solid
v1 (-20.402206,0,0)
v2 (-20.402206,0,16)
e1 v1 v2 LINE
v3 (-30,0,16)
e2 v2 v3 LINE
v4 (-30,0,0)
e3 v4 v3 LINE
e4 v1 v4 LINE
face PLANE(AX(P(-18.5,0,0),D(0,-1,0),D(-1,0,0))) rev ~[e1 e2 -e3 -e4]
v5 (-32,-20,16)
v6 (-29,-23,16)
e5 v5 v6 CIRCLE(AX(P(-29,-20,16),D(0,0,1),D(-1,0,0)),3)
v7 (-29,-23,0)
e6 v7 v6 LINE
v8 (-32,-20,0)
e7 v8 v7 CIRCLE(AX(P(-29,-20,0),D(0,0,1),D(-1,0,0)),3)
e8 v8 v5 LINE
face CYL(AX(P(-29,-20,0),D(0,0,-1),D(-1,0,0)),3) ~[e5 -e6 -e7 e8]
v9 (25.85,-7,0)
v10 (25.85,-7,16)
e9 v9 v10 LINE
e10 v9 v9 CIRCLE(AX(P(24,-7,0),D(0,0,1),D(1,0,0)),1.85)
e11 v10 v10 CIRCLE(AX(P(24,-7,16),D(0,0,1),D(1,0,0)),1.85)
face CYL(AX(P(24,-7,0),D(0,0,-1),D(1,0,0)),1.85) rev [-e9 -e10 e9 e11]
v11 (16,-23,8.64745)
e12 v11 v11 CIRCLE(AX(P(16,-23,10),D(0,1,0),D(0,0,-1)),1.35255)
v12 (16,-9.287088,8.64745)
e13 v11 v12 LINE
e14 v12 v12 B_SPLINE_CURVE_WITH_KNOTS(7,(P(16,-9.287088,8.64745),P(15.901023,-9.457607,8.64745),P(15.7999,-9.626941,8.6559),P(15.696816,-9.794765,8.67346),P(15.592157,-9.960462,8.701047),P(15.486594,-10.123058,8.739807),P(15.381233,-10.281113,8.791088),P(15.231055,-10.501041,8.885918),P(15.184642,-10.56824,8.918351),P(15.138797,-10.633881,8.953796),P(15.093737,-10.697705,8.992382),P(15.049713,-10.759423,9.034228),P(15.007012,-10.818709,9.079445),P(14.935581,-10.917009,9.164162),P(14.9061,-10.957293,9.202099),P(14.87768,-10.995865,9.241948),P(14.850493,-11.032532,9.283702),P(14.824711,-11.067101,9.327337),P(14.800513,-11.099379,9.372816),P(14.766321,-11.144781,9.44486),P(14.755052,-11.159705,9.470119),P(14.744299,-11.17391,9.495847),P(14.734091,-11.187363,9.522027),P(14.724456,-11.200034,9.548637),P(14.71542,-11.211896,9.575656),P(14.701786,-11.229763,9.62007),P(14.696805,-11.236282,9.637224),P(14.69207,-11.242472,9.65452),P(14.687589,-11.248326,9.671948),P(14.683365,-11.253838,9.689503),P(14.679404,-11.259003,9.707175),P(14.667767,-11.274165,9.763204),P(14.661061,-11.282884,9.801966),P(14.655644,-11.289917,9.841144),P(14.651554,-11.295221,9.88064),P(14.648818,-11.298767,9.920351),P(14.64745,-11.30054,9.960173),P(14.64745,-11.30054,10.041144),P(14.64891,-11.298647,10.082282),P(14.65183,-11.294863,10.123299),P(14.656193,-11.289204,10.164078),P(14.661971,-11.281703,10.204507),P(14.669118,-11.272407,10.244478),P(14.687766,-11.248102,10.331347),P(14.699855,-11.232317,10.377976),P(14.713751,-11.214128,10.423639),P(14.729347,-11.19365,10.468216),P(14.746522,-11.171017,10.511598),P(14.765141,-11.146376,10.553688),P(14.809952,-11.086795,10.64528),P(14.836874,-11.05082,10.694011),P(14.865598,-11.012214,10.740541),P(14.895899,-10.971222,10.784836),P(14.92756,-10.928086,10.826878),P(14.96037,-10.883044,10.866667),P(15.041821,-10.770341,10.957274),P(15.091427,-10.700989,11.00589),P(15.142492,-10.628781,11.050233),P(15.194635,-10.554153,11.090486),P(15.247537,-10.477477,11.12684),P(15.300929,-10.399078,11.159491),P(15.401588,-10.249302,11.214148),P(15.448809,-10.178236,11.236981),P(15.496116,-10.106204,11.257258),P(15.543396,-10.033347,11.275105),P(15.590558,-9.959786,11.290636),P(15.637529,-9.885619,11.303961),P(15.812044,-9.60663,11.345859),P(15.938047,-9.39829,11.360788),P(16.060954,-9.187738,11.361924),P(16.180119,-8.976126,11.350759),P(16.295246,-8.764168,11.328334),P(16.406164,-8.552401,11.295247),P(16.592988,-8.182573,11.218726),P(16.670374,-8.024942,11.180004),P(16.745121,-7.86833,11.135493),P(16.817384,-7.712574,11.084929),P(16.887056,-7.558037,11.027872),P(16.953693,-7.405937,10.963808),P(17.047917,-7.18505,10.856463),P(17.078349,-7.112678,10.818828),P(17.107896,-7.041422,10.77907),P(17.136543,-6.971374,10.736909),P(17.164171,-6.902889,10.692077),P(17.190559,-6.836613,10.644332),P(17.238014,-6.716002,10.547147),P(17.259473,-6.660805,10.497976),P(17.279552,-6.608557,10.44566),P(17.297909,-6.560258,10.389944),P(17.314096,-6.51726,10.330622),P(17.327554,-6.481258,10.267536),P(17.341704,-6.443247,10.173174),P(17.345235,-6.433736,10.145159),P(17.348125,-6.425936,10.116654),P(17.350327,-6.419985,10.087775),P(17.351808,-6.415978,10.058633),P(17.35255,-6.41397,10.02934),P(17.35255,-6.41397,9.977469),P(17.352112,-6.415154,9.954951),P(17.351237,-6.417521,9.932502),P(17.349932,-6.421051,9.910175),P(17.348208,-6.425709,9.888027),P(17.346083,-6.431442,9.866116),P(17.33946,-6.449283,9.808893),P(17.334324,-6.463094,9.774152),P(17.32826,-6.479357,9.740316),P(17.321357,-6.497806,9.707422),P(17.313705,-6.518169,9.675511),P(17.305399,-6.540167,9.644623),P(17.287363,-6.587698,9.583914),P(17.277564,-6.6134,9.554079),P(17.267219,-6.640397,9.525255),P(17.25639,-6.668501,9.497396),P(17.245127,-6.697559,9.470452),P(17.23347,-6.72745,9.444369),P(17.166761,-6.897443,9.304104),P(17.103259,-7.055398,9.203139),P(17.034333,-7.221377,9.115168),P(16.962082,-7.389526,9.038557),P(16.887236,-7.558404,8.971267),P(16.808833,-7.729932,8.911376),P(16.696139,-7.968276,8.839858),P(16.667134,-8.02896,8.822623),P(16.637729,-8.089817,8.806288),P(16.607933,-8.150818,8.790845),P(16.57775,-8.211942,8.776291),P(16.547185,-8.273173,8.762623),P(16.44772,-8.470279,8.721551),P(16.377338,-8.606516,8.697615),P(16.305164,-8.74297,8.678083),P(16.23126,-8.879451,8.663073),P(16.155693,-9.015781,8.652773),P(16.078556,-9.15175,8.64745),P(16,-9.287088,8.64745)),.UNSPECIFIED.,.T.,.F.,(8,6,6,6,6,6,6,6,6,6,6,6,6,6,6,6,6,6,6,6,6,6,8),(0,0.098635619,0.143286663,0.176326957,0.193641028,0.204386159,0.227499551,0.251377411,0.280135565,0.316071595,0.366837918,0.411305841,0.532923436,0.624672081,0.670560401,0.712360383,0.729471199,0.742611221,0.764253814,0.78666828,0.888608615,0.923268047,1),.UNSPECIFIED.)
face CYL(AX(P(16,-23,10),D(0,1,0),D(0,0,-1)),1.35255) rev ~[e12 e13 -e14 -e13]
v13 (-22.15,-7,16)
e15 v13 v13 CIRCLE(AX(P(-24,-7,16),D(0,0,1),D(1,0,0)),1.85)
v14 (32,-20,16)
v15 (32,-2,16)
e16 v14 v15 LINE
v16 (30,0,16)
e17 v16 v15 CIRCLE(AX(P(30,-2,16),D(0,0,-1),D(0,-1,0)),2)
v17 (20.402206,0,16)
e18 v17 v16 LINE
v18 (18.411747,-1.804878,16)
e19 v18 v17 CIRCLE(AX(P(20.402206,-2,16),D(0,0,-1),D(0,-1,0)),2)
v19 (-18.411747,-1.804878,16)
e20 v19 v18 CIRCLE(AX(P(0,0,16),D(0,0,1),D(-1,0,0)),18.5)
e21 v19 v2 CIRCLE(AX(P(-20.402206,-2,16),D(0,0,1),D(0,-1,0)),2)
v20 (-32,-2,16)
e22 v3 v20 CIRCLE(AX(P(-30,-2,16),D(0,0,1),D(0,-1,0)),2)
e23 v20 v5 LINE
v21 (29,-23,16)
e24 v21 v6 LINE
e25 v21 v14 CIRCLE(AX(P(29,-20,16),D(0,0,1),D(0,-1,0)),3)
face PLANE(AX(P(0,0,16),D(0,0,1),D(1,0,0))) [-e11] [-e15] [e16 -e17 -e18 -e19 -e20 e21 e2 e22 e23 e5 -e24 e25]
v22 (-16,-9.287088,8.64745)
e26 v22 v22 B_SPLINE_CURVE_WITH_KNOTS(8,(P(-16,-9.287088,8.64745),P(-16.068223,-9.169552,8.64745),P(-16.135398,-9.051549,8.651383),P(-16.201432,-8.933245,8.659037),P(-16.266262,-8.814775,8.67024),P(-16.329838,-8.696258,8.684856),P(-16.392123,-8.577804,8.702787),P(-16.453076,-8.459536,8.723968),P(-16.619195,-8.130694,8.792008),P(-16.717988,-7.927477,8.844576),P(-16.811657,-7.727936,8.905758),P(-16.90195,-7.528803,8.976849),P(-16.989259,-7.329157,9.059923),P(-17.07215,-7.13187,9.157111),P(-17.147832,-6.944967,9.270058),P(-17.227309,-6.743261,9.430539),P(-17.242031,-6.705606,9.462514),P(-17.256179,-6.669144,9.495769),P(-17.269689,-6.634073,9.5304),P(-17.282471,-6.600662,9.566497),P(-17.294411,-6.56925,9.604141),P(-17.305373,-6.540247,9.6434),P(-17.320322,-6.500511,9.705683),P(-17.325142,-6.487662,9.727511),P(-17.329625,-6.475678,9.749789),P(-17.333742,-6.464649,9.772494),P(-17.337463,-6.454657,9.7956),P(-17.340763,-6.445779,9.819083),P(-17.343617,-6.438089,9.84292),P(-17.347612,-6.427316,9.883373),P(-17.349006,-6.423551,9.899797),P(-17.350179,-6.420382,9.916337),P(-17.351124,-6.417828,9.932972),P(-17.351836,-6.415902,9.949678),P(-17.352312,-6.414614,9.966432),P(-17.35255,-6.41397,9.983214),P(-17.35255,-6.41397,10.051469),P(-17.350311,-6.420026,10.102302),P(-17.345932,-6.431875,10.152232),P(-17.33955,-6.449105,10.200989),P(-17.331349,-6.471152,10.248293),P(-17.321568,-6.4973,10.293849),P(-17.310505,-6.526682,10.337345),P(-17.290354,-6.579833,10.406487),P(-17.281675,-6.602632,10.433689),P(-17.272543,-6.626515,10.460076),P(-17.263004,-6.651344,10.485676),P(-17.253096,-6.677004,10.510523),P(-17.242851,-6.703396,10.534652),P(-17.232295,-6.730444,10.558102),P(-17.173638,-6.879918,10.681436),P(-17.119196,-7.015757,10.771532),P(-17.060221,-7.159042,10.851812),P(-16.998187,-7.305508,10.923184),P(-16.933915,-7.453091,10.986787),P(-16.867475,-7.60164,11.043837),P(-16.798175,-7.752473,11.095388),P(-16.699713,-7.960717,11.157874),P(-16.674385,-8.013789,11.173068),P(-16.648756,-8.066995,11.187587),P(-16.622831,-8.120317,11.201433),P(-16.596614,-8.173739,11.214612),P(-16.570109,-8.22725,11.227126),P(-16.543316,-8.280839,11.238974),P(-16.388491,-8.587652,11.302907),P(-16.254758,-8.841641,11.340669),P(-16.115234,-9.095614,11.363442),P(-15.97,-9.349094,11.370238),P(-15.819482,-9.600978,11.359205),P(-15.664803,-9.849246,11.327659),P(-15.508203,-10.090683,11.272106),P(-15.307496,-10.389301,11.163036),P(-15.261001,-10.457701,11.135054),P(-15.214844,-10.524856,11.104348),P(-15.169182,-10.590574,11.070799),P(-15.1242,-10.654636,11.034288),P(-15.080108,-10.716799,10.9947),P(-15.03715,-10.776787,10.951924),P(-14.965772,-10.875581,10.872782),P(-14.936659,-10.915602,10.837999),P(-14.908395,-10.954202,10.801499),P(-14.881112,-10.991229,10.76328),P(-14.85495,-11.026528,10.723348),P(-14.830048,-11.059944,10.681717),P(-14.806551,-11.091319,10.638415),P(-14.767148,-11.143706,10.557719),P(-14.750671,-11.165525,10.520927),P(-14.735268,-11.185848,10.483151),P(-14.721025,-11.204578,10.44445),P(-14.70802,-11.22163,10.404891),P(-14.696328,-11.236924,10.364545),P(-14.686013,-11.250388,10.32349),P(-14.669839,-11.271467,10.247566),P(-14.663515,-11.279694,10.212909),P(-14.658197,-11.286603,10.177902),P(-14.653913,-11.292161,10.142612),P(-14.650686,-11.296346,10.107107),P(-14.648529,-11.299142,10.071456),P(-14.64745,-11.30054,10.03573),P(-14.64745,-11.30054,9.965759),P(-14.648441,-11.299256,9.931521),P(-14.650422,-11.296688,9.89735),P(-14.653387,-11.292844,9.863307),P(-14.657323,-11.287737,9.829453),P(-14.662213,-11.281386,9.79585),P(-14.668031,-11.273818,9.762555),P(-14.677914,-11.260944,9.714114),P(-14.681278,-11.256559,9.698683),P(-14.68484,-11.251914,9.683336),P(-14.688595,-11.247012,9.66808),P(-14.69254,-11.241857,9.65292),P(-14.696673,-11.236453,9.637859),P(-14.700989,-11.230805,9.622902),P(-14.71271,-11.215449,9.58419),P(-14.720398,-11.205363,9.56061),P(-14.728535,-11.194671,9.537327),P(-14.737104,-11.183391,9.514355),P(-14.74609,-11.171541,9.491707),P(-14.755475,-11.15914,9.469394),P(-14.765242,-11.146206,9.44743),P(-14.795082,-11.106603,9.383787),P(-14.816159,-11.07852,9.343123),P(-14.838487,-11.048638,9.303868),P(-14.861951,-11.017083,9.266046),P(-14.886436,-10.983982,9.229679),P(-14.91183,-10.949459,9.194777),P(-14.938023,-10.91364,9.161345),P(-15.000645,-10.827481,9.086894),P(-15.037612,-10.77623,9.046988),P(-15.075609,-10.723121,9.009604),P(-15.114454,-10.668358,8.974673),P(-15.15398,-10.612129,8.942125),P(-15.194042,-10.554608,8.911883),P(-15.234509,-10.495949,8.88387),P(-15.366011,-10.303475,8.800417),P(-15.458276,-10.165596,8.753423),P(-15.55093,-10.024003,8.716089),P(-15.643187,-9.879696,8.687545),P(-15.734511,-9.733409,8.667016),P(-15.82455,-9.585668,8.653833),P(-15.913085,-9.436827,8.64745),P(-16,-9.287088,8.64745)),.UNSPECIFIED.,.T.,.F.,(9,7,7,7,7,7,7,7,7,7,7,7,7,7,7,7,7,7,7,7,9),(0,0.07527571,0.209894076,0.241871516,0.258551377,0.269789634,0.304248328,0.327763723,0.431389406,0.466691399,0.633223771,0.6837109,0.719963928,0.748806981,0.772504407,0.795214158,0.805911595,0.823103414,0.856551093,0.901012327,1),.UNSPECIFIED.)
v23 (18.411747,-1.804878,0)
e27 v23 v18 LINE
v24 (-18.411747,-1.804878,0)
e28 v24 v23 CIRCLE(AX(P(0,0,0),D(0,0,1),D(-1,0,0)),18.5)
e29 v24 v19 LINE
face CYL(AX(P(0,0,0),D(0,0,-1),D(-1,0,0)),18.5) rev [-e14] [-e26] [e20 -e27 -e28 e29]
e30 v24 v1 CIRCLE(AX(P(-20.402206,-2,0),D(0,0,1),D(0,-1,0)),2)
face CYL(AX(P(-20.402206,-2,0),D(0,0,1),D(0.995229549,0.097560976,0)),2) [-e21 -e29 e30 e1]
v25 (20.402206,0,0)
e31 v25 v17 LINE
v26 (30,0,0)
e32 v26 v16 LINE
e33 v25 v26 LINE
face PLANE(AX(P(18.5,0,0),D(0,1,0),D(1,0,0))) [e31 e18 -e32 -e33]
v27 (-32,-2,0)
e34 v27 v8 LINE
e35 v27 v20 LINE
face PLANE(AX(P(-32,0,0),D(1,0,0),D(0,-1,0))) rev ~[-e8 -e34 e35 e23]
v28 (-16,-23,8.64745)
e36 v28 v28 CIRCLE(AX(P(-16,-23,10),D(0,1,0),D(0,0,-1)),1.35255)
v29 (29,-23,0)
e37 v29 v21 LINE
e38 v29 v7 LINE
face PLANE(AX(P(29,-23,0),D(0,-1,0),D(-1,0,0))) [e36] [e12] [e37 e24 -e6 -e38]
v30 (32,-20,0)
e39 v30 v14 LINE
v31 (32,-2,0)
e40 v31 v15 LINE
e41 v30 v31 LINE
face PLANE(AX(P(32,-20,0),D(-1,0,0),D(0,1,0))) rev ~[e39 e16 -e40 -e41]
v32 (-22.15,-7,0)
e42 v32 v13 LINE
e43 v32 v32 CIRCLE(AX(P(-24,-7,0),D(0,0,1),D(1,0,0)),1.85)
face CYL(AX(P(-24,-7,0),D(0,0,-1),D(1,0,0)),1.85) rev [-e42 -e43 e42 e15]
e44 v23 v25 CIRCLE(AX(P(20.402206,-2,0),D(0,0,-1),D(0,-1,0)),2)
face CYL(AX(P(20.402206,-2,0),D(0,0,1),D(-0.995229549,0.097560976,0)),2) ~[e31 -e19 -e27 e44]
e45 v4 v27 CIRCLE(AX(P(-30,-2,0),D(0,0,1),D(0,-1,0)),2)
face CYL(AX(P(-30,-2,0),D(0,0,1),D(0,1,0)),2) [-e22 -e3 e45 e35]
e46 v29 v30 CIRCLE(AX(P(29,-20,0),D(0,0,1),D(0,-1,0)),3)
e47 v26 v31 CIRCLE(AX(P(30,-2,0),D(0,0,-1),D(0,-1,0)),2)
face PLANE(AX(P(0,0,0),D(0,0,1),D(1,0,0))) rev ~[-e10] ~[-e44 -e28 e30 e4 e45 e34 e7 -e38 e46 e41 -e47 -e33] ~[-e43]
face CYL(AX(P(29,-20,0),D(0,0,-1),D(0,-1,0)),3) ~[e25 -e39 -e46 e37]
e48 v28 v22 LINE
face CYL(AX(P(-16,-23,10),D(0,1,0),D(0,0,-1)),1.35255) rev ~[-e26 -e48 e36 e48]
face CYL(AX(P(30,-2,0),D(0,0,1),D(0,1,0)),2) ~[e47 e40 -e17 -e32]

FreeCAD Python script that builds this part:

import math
import FreeCAD as App
import Part
import Sketcher
from FreeCAD import Vector
Q = App.Units.Quantity


def edges_at(feature, points):
    """Names of the edges that pass closest to the given points."""
    edges = feature.Shape.Edges
    near = lambda p: min(range(len(edges)), key=lambda i: edges[i].distToShape(Part.Vertex(*p))[0])
    return sorted({f"Edge{near(p) + 1}" for p in points})

doc = App.newDocument("Part")
body = doc.addObject("PartDesign::Body", "Body")

sketch1 = body.newObject("Sketcher::SketchObject", "Sketch")
sketch1.AttachmentSupport = (doc.getObject("XY_Plane"), [""])
sketch1.MapMode = "FlatFace"
sketch1.addGeometry([
    Part.ArcOfCircle(Part.Circle(Vector(0, 0, 0), Vector(0, 0, 1), 18.5), math.radians(180), math.radians(360)),
    Part.LineSegment(Vector(-18.5, 0, 0), Vector(-32, 0, 0)),
    Part.LineSegment(Vector(-32, 0, 0), Vector(-32, -20, 0)),
    Part.ArcOfCircle(Part.Circle(Vector(-29, -20, 0), Vector(0, 0, 1), 3), math.radians(180), math.radians(270)),
    Part.LineSegment(Vector(-29, -23, 0), Vector(29, -23, 0)),
    Part.ArcOfCircle(Part.Circle(Vector(29, -20, 0), Vector(0, 0, 1), 3), math.radians(-90), math.radians(0)),
    Part.LineSegment(Vector(32, -20, 0), Vector(32, 0, 0)),
    Part.LineSegment(Vector(32, 0, 0), Vector(18.5, 0, 0)),
    Part.Circle(Vector(-24, -7, 0), Vector(0, 0, 1), 1.9),
    Part.Circle(Vector(24, -7, 0), Vector(0, 0, 1), 1.9),
], False)
sketch1.addConstraint([
    Sketcher.Constraint("Coincident", 0, 1, 1, 1),
    Sketcher.Constraint("Coincident", 1, 2, 2, 1),
    Sketcher.Constraint("Tangent", 2, 2, 3, 1),
    Sketcher.Constraint("Tangent", 3, 2, 4, 1),
    Sketcher.Constraint("Tangent", 4, 2, 5, 1),
    Sketcher.Constraint("Tangent", 5, 2, 6, 1),
    Sketcher.Constraint("Coincident", 6, 2, 7, 1),
    Sketcher.Constraint("Coincident", 7, 2, 0, 2),
    Sketcher.Constraint("Horizontal", 1),
    Sketcher.Constraint("Vertical", 2),
    Sketcher.Constraint("Horizontal", 4),
    Sketcher.Constraint("Vertical", 6),
    Sketcher.Constraint("Horizontal", 7),
    Sketcher.Constraint("Coincident", 0, 3, -1, 1),
    Sketcher.Constraint("Equal", 3, 5),
    Sketcher.Constraint("Equal", 8, 9),
    Sketcher.Constraint("Symmetric", 1, 2, 6, 2, -1, 1),
    Sketcher.Constraint("Symmetric", 8, 3, 9, 3, -2),
    Sketcher.Constraint("PointOnObject", 0, 1, -1),
    Sketcher.Constraint("Radius", 3, Q("3 mm")),
    Sketcher.Constraint("Diameter", 8, Q("3.7 mm")),
    Sketcher.Constraint("Radius", 0, Q("18.5 mm")),
    Sketcher.Constraint("DistanceX", 4, 1, 4, 2, Q("58 mm")),
    Sketcher.Constraint("DistanceY", 2, 2, 2, 1, Q("20 mm")),
    Sketcher.Constraint("DistanceX", 8, 3, -1, 1, Q("24 mm")),
    Sketcher.Constraint("DistanceY", 8, 3, -1, 1, Q("7 mm")),
])
pad1 = body.newObject("PartDesign::Pad", "Pad")
pad1.Profile = sketch1
pad1.Length = 16

sketch2 = body.newObject("Sketcher::SketchObject", "Sketch001")
sketch2.AttachmentSupport = (doc.getObject("XZ_Plane"), [""])
sketch2.MapMode = "FlatFace"
sketch2.AttachmentOffset = App.Placement(Vector(0, 0, 23), App.Rotation())
sketch2.addGeometry([
    Part.Circle(Vector(16, 10, 0), Vector(0, 0, 1), 1.4),
    Part.Circle(Vector(-16, 10, 0), Vector(0, 0, 1), 1.4),
], False)
sketch2.addConstraint([
    Sketcher.Constraint("Equal", 0, 1),
    Sketcher.Constraint("Symmetric", 0, 3, 1, 3, -2),
    Sketcher.Constraint("Diameter", 0, Q("2.705 mm")),
    Sketcher.Constraint("DistanceX", -1, 1, 0, 3, Q("16 mm")),
    Sketcher.Constraint("DistanceY", -1, 1, 0, 3, Q("10 mm")),
])
doc.recompute()
hole = body.newObject("PartDesign::Hole", "Hole")
hole.Profile = sketch2
hole.ThreadType = "None"
hole.Diameter = 2.7051
hole.DepthType = "ThroughAll"
doc.recompute()

fillet = body.newObject("PartDesign::Fillet", "Fillet")
fillet.Base = (hole, edges_at(hole, [
    (32, 0, 8),
    (18.5, 0, 8),
    (-18.5, 0, 8),
    (-32, 0, 8),
]))
fillet.Radius = 2

doc.recompute()
